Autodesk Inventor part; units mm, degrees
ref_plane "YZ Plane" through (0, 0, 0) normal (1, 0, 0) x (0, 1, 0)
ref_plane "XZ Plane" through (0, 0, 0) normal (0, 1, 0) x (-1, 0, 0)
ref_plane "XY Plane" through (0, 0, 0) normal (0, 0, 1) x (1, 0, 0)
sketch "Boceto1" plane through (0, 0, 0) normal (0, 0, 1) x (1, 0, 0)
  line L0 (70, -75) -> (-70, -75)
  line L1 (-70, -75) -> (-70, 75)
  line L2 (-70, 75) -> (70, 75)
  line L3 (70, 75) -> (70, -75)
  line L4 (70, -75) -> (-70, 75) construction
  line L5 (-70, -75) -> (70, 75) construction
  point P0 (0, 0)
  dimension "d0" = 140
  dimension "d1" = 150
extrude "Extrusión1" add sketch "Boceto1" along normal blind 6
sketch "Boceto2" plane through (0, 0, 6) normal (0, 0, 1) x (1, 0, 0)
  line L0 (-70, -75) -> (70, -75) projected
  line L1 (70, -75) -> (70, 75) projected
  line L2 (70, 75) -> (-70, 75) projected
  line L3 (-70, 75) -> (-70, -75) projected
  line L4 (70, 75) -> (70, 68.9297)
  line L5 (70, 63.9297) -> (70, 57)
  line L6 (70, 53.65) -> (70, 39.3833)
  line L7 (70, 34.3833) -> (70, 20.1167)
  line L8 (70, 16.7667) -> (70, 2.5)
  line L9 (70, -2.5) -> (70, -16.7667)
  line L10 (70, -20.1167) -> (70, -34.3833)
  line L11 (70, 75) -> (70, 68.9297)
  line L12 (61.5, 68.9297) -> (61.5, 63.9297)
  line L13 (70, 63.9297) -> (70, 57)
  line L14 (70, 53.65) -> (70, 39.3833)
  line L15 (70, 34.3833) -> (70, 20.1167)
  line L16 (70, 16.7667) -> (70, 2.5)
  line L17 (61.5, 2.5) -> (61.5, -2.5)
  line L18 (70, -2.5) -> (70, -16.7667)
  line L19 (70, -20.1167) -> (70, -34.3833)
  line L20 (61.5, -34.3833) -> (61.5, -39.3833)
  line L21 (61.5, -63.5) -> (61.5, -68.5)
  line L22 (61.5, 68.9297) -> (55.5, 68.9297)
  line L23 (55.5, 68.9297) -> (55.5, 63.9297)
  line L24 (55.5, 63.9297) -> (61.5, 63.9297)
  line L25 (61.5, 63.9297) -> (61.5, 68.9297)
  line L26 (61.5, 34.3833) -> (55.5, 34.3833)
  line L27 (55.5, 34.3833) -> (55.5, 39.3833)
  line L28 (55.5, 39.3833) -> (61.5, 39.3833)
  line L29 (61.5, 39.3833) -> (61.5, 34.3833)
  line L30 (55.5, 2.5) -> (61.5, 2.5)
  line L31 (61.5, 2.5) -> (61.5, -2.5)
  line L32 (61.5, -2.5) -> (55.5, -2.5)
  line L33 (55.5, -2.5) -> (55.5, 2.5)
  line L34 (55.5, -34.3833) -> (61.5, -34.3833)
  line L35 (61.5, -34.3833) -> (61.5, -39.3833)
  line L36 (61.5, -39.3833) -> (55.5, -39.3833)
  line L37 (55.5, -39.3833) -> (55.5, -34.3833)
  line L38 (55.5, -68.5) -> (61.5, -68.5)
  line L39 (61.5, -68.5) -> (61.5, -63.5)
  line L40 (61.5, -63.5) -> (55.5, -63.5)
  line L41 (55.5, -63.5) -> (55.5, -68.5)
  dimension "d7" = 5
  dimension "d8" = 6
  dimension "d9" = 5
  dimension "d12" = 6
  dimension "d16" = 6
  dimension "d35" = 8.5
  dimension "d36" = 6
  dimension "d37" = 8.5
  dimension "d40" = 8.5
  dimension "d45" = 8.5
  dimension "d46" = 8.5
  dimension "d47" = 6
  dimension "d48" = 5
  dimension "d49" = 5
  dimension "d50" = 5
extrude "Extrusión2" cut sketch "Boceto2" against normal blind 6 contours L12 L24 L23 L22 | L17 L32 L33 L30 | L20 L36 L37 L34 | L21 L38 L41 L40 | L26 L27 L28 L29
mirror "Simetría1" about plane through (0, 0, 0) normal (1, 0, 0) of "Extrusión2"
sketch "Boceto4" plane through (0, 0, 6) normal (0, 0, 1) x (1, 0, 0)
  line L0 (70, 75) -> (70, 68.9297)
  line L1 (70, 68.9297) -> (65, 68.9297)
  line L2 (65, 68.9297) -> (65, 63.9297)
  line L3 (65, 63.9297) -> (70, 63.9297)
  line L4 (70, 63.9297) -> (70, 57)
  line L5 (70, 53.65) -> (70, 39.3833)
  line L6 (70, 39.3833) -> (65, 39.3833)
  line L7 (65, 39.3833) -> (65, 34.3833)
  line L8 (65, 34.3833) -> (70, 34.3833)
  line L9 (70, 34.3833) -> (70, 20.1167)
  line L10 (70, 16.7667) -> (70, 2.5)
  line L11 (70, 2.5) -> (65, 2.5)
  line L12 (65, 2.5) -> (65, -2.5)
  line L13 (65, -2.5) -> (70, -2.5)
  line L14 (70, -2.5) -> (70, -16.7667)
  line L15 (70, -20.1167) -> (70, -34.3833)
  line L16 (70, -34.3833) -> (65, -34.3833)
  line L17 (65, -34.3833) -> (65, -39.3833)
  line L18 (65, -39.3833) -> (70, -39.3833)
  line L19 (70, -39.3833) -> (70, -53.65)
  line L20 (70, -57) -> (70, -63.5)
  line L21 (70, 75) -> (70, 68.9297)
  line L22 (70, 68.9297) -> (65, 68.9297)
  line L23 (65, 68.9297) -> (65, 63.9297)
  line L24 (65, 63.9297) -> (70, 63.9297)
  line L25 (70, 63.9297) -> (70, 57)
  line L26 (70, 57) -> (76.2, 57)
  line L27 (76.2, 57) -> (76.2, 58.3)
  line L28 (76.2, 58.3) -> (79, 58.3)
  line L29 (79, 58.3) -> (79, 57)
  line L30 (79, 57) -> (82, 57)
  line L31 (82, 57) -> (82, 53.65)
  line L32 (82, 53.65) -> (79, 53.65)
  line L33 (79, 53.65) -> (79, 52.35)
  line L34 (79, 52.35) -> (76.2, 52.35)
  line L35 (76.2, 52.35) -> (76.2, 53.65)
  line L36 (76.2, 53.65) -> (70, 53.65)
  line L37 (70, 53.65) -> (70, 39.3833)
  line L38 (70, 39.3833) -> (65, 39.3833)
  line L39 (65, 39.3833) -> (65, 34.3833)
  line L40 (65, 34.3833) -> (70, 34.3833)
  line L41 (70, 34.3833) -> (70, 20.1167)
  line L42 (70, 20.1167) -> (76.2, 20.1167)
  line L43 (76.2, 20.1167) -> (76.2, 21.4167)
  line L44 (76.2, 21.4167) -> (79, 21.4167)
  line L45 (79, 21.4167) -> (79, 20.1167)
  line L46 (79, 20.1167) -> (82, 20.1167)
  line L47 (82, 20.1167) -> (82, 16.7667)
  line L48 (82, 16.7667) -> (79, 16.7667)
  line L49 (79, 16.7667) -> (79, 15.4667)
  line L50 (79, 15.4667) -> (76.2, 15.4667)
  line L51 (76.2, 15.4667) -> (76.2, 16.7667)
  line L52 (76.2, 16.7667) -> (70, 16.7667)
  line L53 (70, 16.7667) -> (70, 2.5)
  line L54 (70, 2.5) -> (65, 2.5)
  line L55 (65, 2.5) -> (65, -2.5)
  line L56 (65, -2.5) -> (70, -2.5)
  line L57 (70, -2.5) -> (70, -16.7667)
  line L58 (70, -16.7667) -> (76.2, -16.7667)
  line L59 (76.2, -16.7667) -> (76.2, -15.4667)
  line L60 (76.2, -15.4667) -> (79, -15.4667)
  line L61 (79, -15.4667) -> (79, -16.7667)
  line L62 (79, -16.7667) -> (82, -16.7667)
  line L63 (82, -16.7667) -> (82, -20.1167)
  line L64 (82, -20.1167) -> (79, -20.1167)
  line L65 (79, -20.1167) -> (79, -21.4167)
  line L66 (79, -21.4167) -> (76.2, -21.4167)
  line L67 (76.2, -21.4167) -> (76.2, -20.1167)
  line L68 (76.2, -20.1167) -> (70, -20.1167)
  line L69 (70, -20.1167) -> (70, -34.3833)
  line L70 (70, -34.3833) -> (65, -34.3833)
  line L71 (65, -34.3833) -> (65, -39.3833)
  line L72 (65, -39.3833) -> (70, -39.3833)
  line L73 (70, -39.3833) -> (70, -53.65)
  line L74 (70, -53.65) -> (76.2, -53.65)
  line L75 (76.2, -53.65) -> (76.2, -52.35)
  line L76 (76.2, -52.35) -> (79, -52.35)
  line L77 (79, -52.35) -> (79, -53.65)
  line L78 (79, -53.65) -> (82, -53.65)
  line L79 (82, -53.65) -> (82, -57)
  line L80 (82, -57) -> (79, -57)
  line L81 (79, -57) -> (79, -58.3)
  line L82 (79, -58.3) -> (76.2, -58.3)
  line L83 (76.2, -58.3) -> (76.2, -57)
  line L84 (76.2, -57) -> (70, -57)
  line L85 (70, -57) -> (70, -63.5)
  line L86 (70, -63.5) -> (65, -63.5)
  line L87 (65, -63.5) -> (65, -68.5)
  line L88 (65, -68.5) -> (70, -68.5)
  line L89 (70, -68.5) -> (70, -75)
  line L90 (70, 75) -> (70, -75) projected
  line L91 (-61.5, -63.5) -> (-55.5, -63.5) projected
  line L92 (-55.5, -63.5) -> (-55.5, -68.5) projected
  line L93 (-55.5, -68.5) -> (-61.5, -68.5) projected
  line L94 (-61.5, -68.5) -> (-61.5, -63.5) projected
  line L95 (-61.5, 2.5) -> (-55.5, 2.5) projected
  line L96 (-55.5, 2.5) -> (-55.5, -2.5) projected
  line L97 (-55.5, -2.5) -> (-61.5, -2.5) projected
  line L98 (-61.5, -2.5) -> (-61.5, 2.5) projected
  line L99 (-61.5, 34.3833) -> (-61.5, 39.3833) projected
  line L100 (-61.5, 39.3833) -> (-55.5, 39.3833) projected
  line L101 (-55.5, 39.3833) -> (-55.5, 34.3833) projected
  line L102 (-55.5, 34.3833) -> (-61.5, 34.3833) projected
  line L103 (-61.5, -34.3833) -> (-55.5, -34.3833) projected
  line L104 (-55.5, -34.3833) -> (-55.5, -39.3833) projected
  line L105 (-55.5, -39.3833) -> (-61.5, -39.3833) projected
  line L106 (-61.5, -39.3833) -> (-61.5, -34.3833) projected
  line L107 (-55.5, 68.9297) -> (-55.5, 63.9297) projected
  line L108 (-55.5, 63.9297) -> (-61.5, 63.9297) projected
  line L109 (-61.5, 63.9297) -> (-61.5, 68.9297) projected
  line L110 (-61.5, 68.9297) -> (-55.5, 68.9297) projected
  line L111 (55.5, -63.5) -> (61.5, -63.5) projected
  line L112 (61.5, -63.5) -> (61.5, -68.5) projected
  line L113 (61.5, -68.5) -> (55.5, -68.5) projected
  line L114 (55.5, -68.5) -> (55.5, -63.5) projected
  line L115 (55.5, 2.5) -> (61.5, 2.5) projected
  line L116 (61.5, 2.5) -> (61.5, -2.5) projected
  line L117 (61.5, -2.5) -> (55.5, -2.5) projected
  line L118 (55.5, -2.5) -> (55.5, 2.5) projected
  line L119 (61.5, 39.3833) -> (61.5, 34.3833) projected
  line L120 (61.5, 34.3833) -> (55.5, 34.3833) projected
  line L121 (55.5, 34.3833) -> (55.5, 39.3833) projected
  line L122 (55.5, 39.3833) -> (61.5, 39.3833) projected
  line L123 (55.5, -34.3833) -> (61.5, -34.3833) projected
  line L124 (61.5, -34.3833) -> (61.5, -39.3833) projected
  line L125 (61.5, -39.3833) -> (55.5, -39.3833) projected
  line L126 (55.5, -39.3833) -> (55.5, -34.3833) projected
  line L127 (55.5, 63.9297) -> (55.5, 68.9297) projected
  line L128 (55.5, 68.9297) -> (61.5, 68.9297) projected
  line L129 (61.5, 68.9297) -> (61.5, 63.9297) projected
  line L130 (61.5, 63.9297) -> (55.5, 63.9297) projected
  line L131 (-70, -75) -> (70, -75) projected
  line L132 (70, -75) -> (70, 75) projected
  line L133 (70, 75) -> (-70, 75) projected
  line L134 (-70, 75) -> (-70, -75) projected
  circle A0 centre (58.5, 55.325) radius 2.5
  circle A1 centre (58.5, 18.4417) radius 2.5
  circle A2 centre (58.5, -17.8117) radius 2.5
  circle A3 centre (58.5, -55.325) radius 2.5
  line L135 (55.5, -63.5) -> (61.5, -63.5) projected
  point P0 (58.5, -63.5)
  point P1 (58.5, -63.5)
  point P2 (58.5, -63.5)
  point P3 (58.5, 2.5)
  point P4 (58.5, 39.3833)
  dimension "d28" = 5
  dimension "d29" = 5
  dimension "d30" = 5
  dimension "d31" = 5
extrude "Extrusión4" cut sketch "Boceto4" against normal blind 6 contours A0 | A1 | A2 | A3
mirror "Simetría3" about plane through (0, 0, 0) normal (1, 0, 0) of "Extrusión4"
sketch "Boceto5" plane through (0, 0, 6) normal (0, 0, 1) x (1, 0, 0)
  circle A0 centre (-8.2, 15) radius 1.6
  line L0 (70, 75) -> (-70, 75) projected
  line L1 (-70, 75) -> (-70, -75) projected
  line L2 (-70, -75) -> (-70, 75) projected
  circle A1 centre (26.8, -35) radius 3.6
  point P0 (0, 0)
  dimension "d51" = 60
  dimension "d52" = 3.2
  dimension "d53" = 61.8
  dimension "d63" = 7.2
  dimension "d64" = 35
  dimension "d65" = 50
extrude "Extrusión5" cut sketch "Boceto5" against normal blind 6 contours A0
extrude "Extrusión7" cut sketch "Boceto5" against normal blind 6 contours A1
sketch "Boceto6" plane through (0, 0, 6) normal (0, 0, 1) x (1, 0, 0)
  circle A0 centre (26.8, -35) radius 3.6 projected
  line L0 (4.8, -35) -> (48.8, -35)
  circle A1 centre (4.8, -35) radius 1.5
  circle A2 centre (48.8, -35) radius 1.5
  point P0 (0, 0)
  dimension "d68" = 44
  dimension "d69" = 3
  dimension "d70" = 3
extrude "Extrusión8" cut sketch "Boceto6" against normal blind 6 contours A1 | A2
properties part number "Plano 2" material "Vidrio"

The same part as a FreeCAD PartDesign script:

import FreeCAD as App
import Part
import Sketcher

V = App.Vector
Q = App.Units.Quantity


def add_polygon(sketch, points):
    """Adds a closed chain of lines whose ends are joined by coincident constraints."""
    first, n = sketch.GeometryCount, len(points)
    for a, b in zip(points, points[1:] + points[:1]):
        sketch.addGeometry(Part.LineSegment(App.Vector(*a, 0), App.Vector(*b, 0)), False)
    for i in range(n):
        sketch.addConstraint(Sketcher.Constraint("Coincident", first + i, 2, first + (i + 1) % n, 1))

doc = App.newDocument("Part")
body = doc.addObject("PartDesign::Body", "Body")

# Sketch on XY plane
sketch1 = body.newObject("Sketcher::SketchObject", "Sketch")
sketch1.AttachmentSupport = (doc.getObject("XY_Plane"), [""])
sketch1.MapMode = "FlatFace"
add_polygon(sketch1, [(-70, -75), (70, -75), (70, 75), (-70, 75)])  # lines 0-3
sketch1.addConstraint(Sketcher.Constraint("Horizontal", 0))
sketch1.addConstraint(Sketcher.Constraint("Vertical", 1))
sketch1.addConstraint(Sketcher.Constraint("Horizontal", 2))
sketch1.addConstraint(Sketcher.Constraint("Vertical", 3))
sketch1.addConstraint(Sketcher.Constraint("Symmetric", 0, 2, 2, 2, -1, 1))
sketch1.addConstraint(Sketcher.Constraint("DistanceX", 0, 1, 0, 2, Q("140 mm")))
sketch1.addConstraint(Sketcher.Constraint("DistanceY", 1, 1, 1, 2, Q("150 mm")))
pad1 = body.newObject("PartDesign::Pad", "Pad")
pad1.Profile = sketch1
pad1.Length = 6

# Sketch on XY plane
sketch2 = body.newObject("Sketcher::SketchObject", "Sketch001")
sketch2.AttachmentSupport = (doc.getObject("XY_Plane"), [""])
sketch2.MapMode = "FlatFace"
sketch2.AttachmentOffset = App.Placement(V(0, 0, 6), App.Rotation())
add_polygon(sketch2, [(62, 64), (62, 69), (56, 69), (56, 64)])  # lines 0-3
add_polygon(sketch2, [(62, -2), (62, 2), (56, 2), (56, -2)])  # lines 4-7
add_polygon(sketch2, [(62, -39), (62, -34), (56, -34), (56, -39)])  # lines 8-11
add_polygon(sketch2, [(62, -68), (62, -64), (56, -64), (56, -68)])  # lines 12-15
add_polygon(sketch2, [(56, 34), (62, 34), (62, 39), (56, 39)])  # lines 16-19
sketch2.addConstraint(Sketcher.Constraint("Vertical", 0))
sketch2.addConstraint(Sketcher.Constraint("Horizontal", 1))
sketch2.addConstraint(Sketcher.Constraint("Vertical", 2))
sketch2.addConstraint(Sketcher.Constraint("Horizontal", 3))
sketch2.addConstraint(Sketcher.Constraint("Vertical", 4))
sketch2.addConstraint(Sketcher.Constraint("Horizontal", 5))
sketch2.addConstraint(Sketcher.Constraint("Vertical", 6))
sketch2.addConstraint(Sketcher.Constraint("Horizontal", 7))
sketch2.addConstraint(Sketcher.Constraint("Vertical", 8))
sketch2.addConstraint(Sketcher.Constraint("Horizontal", 9))
sketch2.addConstraint(Sketcher.Constraint("Vertical", 10))
sketch2.addConstraint(Sketcher.Constraint("Horizontal", 11))
sketch2.addConstraint(Sketcher.Constraint("Vertical", 12))
sketch2.addConstraint(Sketcher.Constraint("Horizontal", 13))
sketch2.addConstraint(Sketcher.Constraint("Vertical", 14))
sketch2.addConstraint(Sketcher.Constraint("Horizontal", 15))
sketch2.addConstraint(Sketcher.Constraint("Horizontal", 16))
sketch2.addConstraint(Sketcher.Constraint("Vertical", 17))
sketch2.addConstraint(Sketcher.Constraint("Horizontal", 18))
sketch2.addConstraint(Sketcher.Constraint("Vertical", 19))
sketch2.addConstraint(Sketcher.Constraint("Symmetric", 8, 2, 16, 2, -1))
sketch2.addConstraint(Sketcher.Constraint("Symmetric", 10, 2, 18, 2, -1))
sketch2.addConstraint(Sketcher.Constraint("Vertical", 3, 2, 4, 2))
sketch2.addConstraint(Sketcher.Constraint("Vertical", 2, 2, 5, 2))
sketch2.addConstraint(Sketcher.Constraint("Vertical", 7, 2, 8, 2))
sketch2.addConstraint(Sketcher.Constraint("Vertical", 6, 2, 9, 2))
sketch2.addConstraint(Sketcher.Constraint("Vertical", 11, 2, 12, 2))
sketch2.addConstraint(Sketcher.Constraint("Vertical", 10, 2, 13, 2))
sketch2.addConstraint(Sketcher.Constraint("Equal", 2, 4))
sketch2.addConstraint(Sketcher.Constraint("Equal", 6, 8))
sketch2.addConstraint(Sketcher.Constraint("Equal", 10, 12))
sketch2.addConstraint(Sketcher.Constraint("DistanceX", 1, 2, 1, 1, Q("6 mm")))
sketch2.addConstraint(Sketcher.Constraint("DistanceY", 0, 1, 0, 2, Q("5 mm")))
sketch2.addConstraint(Sketcher.Constraint("DistanceY", 12, 2, 7, 2, Q("61 mm")))
sketch2.addConstraint(Sketcher.Constraint("DistanceX", -1, 1, 0, 2, Q("61.5 mm")))
sketch2.addConstraint(Sketcher.Constraint("DistanceY", -1, 1, 4, 2, Q("2.5 mm")))
sketch2.addConstraint(Sketcher.Constraint("DistanceY", 8, 2, 3, 2, Q("98.313 mm")))
sketch2.addConstraint(Sketcher.Constraint("DistanceY", -1, 1, 0, 2, Q("68.9297 mm")))
pocket1 = body.newObject("PartDesign::Pocket", "Pocket")
pocket1.Profile = sketch2
pocket1.Length = 6
doc.recompute()

mirrored = body.newObject("PartDesign::Mirrored", "Mirrored")
mirrored.Originals = [pocket1]
mirrored.MirrorPlane = (doc.getObject("YZ_Plane"), [""])
body.Tip = mirrored

# Sketch on XY plane
sketch3 = body.newObject("Sketcher::SketchObject", "Sketch002")
sketch3.AttachmentSupport = (doc.getObject("XY_Plane"), [""])
sketch3.MapMode = "FlatFace"
sketch3.AttachmentOffset = App.Placement(V(0, 0, 6), App.Rotation())
sketch3.addGeometry(Part.Circle(V(58.5, 55.3, 0), V(0, 0, 1), 2.5), False)
sketch3.addGeometry(Part.Circle(V(58.5, 18.4, 0), V(0, 0, 1), 2.5), False)
sketch3.addGeometry(Part.Circle(V(58.5, -17.8, 0), V(0, 0, 1), 2.5), False)
sketch3.addGeometry(Part.Circle(V(58.5, -55.3, 0), V(0, 0, 1), 2.5), False)
sketch3.addConstraint(Sketcher.Constraint("Equal", 0, 1))
sketch3.addConstraint(Sketcher.Constraint("Equal", 1, 2))
sketch3.addConstraint(Sketcher.Constraint("Equal", 2, 3))
sketch3.addConstraint(Sketcher.Constraint("Symmetric", 0, 3, 3, 3, -1))
sketch3.addConstraint(Sketcher.Constraint("Vertical", 0, 3, 1, 3))
sketch3.addConstraint(Sketcher.Constraint("Vertical", 1, 3, 2, 3))
sketch3.addConstraint(Sketcher.Constraint("Diameter", 0, Q("5 mm")))
sketch3.addConstraint(Sketcher.Constraint("DistanceX", -1, 1, 0, 3, Q("58.5 mm")))
sketch3.addConstraint(Sketcher.Constraint("DistanceY", 3, 3, 0, 3, Q("110.65 mm")))
sketch3.addConstraint(Sketcher.Constraint("DistanceY", -1, 1, 1, 3, Q("18.4417 mm")))
sketch3.addConstraint(Sketcher.Constraint("DistanceY", 2, 3, -1, 1, Q("17.8117 mm")))
pocket2 = body.newObject("PartDesign::Pocket", "Pocket001")
pocket2.Profile = sketch3
pocket2.Length = 6
doc.recompute()

mirrored2 = body.newObject("PartDesign::Mirrored", "Mirrored001")
mirrored2.Originals = [pocket2]
mirrored2.MirrorPlane = (doc.getObject("YZ_Plane"), [""])
body.Tip = mirrored2

# Sketch on XY plane
sketch4 = body.newObject("Sketcher::SketchObject", "Sketch003")
sketch4.AttachmentSupport = (doc.getObject("XY_Plane"), [""])
sketch4.MapMode = "FlatFace"
sketch4.AttachmentOffset = App.Placement(V(0, 0, 6), App.Rotation())
sketch4.addGeometry(Part.Circle(V(-8.2, 15, 0), V(0, 0, 1), 1.6), False)
sketch4.addConstraint(Sketcher.Constraint("Diameter", 0, Q("3.2 mm")))
sketch4.addConstraint(Sketcher.Constraint("DistanceY", -1, 1, 0, 3, Q("15 mm")))
sketch4.addConstraint(Sketcher.Constraint("DistanceX", 0, 3, -1, 1, Q("8.2 mm")))
pocket3 = body.newObject("PartDesign::Pocket", "Pocket002")
pocket3.Profile = sketch4
pocket3.Length = 6

# Sketch on XY plane
sketch5 = body.newObject("Sketcher::SketchObject", "Sketch004")
sketch5.AttachmentSupport = (doc.getObject("XY_Plane"), [""])
sketch5.MapMode = "FlatFace"
sketch5.AttachmentOffset = App.Placement(V(0, 0, 6), App.Rotation())
sketch5.addGeometry(Part.Circle(V(26.8, -35, 0), V(0, 0, 1), 3.6), False)
sketch5.addConstraint(Sketcher.Constraint("Diameter", 0, Q("7.2 mm")))
sketch5.addConstraint(Sketcher.Constraint("DistanceY", 0, 3, -1, 1, Q("35 mm")))
sketch5.addConstraint(Sketcher.Constraint("DistanceX", -1, 1, 0, 3, Q("26.8 mm")))
pocket4 = body.newObject("PartDesign::Pocket", "Pocket003")
pocket4.Profile = sketch5
pocket4.Length = 6

# Sketch on XY plane
sketch6 = body.newObject("Sketcher::SketchObject", "Sketch005")
sketch6.AttachmentSupport = (doc.getObject("XY_Plane"), [""])
sketch6.MapMode = "FlatFace"
sketch6.AttachmentOffset = App.Placement(V(0, 0, 6), App.Rotation())
sketch6.addGeometry(Part.Circle(V(4.8, -35, 0), V(0, 0, 1), 1.5), False)
sketch6.addGeometry(Part.Circle(V(48.8, -35, 0), V(0, 0, 1), 1.5), False)
sketch6.addConstraint(Sketcher.Constraint("Equal", 0, 1))
sketch6.addConstraint(Sketcher.Constraint("Horizontal", 0, 3, 1, 3))
sketch6.addConstraint(Sketcher.Constraint("Diameter", 0, Q("3 mm")))
sketch6.addConstraint(Sketcher.Constraint("DistanceX", 0, 3, 1, 3, Q("44 mm")))
sketch6.addConstraint(Sketcher.Constraint("DistanceY", 0, 3, -1, 1, Q("35 mm")))
sketch6.addConstraint(Sketcher.Constraint("DistanceX", -1, 1, 0, 3, Q("4.8 mm")))
pocket5 = body.newObject("PartDesign::Pocket", "Pocket004")
pocket5.Profile = sketch6
pocket5.Length = 6

doc.recompute()
